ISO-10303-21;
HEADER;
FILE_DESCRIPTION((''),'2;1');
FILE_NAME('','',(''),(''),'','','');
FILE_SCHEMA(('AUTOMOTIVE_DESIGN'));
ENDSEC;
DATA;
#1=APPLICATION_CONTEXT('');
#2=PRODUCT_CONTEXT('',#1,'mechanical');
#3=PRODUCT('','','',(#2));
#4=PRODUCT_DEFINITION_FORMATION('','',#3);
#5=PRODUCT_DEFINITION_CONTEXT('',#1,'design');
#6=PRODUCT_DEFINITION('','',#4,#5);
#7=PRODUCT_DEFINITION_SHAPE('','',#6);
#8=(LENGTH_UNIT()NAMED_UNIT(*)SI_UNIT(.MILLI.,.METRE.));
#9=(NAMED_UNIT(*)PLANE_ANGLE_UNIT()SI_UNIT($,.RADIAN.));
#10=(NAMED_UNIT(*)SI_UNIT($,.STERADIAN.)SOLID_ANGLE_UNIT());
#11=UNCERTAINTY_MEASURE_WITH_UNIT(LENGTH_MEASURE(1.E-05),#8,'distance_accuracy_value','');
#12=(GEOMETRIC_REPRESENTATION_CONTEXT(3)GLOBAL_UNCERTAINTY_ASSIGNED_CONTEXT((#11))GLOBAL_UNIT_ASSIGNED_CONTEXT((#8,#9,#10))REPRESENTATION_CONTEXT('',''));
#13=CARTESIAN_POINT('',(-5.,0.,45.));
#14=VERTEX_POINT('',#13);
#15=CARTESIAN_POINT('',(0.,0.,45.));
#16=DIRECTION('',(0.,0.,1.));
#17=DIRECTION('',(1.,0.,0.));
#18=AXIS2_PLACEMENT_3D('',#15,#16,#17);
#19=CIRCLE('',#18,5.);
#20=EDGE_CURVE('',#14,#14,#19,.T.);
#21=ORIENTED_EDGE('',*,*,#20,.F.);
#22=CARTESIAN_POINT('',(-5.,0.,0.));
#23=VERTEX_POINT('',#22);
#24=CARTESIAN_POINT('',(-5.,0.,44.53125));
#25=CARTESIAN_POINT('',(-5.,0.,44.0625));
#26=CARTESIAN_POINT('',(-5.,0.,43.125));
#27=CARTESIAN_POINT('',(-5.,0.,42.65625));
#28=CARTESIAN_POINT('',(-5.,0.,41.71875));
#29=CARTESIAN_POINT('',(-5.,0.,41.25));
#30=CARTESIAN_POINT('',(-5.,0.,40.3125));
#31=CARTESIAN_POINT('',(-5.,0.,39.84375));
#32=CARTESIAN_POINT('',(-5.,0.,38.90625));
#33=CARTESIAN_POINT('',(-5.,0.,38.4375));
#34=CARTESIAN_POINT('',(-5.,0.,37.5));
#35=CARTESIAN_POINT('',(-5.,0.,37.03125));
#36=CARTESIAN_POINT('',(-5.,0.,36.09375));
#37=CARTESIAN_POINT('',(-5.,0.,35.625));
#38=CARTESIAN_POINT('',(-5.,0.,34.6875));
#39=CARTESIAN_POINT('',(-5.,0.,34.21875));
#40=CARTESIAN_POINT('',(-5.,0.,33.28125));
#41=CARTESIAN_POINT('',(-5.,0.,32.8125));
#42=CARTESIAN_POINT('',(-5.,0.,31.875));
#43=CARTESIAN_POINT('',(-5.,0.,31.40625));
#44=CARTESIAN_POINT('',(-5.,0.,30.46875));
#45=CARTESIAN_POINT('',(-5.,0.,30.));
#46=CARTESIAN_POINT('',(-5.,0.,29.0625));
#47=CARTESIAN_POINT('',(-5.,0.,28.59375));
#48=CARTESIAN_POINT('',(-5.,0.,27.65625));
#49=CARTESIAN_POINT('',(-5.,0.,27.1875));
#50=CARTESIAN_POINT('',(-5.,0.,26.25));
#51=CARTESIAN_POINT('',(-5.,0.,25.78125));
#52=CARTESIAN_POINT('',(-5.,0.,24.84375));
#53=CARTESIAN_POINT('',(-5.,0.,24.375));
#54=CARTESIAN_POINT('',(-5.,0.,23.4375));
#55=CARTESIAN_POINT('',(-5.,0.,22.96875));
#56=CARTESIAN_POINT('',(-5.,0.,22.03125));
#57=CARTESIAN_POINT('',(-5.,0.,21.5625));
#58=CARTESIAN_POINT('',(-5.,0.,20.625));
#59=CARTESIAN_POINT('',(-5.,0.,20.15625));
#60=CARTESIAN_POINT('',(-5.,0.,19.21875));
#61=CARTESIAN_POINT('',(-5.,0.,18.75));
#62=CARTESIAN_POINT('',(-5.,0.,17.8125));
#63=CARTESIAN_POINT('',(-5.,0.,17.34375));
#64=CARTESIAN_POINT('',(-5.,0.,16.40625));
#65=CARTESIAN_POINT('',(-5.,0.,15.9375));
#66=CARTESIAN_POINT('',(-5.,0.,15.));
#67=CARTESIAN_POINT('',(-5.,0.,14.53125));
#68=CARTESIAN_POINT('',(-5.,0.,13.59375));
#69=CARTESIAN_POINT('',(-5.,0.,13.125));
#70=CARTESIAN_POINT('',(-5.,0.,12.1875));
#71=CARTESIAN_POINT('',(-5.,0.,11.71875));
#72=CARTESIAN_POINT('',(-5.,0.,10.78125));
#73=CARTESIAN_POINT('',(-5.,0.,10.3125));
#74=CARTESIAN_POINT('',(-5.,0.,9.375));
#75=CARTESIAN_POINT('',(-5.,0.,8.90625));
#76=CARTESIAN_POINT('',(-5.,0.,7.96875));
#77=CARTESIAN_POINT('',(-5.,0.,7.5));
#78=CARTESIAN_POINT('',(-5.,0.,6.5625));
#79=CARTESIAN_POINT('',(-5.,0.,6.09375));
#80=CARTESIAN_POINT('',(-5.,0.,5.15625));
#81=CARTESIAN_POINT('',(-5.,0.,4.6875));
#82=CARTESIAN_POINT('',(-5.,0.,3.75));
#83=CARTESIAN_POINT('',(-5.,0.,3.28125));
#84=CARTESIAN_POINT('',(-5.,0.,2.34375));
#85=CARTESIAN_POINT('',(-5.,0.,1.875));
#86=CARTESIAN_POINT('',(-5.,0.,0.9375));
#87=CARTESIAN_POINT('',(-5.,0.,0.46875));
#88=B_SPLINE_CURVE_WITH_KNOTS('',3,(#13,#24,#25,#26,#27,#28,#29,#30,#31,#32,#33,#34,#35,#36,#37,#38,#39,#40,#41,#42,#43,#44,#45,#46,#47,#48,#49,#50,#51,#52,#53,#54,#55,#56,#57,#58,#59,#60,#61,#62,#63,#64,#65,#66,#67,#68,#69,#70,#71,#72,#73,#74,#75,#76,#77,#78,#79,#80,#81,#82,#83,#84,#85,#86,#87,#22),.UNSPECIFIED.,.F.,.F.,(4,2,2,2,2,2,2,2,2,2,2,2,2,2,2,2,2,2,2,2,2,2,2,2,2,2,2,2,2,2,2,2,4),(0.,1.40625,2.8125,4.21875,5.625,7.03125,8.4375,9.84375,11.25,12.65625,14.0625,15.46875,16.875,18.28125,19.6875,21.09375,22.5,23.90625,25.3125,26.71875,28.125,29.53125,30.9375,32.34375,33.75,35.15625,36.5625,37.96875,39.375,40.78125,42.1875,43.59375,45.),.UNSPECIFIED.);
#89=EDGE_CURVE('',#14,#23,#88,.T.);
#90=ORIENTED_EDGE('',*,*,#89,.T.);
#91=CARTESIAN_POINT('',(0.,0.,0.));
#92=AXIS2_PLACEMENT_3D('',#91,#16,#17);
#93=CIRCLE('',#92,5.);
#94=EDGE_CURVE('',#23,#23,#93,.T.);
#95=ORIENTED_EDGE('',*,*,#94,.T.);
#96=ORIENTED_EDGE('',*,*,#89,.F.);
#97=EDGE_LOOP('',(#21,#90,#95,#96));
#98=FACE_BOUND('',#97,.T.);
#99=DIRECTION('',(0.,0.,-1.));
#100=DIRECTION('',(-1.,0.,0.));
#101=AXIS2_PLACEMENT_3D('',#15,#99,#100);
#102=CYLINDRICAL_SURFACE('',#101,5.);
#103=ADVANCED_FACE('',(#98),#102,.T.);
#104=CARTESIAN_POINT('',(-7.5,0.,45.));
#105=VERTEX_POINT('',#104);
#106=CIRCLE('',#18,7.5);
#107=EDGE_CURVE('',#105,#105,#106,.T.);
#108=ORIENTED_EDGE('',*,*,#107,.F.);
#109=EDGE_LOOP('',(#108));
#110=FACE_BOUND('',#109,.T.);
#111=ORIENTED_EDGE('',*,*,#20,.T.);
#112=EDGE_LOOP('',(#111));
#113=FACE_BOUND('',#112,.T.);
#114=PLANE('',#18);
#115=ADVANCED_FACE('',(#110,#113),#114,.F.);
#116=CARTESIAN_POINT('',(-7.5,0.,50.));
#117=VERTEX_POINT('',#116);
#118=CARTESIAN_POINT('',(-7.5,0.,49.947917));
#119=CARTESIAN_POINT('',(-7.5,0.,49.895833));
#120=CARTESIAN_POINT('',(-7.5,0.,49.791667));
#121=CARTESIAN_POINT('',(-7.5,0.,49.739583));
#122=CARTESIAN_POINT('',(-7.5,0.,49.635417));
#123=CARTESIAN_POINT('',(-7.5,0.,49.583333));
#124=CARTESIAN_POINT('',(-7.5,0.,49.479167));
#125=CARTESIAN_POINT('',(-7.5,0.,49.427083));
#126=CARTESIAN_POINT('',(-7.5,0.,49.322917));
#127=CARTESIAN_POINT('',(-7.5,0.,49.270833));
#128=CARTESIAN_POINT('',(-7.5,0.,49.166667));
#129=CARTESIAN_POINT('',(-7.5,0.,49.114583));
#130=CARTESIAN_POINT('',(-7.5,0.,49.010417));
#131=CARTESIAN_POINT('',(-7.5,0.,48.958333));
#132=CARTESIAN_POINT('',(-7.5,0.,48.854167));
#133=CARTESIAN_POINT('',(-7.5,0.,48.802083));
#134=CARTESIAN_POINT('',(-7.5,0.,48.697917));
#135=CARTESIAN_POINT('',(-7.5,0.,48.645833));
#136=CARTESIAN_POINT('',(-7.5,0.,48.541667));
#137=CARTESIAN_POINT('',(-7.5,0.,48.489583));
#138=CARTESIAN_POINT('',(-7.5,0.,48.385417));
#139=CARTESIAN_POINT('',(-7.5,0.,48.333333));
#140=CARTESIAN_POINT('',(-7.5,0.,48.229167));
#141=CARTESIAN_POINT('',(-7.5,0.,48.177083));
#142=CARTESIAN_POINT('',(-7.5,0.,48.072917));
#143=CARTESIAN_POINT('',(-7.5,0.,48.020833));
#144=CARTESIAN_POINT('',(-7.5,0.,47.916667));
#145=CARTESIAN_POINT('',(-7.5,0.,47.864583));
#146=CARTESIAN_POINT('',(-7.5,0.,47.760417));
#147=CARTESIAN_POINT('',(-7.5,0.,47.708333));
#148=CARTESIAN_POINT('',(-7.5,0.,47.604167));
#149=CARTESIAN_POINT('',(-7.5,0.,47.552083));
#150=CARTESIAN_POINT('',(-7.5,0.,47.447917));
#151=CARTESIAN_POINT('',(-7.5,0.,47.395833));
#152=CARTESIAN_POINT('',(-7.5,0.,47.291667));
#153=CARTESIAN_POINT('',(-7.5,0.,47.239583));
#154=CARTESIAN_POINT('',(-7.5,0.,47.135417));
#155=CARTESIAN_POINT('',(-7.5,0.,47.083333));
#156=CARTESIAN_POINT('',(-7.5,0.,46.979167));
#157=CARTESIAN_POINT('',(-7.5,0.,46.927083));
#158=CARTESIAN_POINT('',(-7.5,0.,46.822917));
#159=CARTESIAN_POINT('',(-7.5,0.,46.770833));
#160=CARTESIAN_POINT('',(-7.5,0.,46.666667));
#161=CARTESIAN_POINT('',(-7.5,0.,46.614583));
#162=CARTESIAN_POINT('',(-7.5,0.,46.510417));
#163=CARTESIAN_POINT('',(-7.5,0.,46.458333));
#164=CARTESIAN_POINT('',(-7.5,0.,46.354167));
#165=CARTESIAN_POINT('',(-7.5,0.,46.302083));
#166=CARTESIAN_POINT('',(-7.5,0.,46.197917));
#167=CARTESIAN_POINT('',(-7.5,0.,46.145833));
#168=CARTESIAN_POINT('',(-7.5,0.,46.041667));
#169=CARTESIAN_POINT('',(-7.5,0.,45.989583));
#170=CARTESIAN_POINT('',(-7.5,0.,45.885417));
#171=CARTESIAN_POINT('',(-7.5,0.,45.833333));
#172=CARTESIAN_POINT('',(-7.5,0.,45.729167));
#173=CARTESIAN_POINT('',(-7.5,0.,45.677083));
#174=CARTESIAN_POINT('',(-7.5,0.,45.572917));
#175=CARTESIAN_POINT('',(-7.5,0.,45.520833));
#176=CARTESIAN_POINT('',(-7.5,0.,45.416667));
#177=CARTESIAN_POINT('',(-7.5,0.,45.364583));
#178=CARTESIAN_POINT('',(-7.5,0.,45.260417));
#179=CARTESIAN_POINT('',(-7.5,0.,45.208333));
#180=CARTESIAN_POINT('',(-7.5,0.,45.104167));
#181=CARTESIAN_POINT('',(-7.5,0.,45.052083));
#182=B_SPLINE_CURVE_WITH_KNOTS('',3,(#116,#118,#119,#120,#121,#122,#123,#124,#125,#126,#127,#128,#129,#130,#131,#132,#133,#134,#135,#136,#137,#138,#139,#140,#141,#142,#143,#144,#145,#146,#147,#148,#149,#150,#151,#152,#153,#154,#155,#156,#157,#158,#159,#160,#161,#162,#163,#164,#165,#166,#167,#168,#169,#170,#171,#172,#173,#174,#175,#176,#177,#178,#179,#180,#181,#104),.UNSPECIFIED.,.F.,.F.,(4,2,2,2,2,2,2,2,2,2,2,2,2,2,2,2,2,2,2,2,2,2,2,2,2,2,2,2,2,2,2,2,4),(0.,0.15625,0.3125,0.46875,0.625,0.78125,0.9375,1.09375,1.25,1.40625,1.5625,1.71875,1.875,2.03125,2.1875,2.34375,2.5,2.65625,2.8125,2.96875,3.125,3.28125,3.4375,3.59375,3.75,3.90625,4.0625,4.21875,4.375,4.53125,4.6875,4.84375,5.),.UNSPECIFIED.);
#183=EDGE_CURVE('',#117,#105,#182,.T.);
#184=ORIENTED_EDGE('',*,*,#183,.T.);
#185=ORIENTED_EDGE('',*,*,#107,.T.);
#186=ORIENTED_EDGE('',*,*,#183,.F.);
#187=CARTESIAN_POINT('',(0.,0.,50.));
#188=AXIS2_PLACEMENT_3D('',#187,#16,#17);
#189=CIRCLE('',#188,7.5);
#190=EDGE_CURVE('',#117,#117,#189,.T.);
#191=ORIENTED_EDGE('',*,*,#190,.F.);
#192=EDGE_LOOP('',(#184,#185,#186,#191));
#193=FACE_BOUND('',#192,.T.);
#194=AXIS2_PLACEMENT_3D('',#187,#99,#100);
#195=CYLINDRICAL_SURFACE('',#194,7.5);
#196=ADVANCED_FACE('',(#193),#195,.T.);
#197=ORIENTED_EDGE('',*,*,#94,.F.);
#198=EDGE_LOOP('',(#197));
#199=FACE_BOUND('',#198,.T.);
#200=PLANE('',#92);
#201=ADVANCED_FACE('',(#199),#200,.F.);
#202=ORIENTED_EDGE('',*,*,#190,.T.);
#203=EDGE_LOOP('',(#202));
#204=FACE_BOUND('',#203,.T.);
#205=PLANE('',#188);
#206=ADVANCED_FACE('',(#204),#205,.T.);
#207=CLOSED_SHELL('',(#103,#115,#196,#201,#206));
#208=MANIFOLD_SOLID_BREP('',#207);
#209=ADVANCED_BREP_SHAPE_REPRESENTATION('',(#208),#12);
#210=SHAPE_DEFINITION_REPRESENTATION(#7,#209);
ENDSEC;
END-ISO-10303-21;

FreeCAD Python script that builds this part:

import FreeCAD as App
import Part
import Sketcher
from FreeCAD import Vector

doc = App.newDocument("Part")
params = doc.addObject("Spreadsheet::Sheet", "Params")
for row, (alias, value) in enumerate([
    ("sketch1_diameter", "10 mm"),
    ("pad1_length", "45 mm"),
    ("sketch2_diameter", "15 mm"),
    ("pad2_length", "5 mm"),
], start=1):
    params.set(f"A{row}", alias)
    params.set(f"B{row}", "=" + value)
    params.setAlias(f"B{row}", alias)

body = doc.addObject("PartDesign::Body", "Body")

sketch1 = body.newObject("Sketcher::SketchObject", "Sketch")
sketch1.AttachmentSupport = (doc.getObject("XY_Plane"), [""])
sketch1.MapMode = "FlatFace"
sketch1.addGeometry(Part.Circle(Vector(0, 0, 0), Vector(0, 0, 1), 5), False)
sketch1.addConstraint([
    Sketcher.Constraint("Coincident", 0, 3, -1, 1),
    Sketcher.Constraint("Diameter", 0, 10.0),
])
sketch1.setExpression("Constraints[1]", "Params.sketch1_diameter")
pad1 = body.newObject("PartDesign::Pad", "Pad")
pad1.Profile = sketch1
pad1.setExpression("Length", "Params.pad1_length")

sketch2 = body.newObject("Sketcher::SketchObject", "Sketch001")
sketch2.AttachmentSupport = (doc.getObject("XY_Plane"), [""])
sketch2.MapMode = "FlatFace"
sketch2.AttachmentOffset = App.Placement(Vector(0, 0, 45), App.Rotation())
sketch2.addGeometry(Part.Circle(Vector(0, 0, 0), Vector(0, 0, 1), 8), False)
sketch2.addConstraint([
    Sketcher.Constraint("Coincident", 0, 3, -1, 1),
    Sketcher.Constraint("Diameter", 0, 15.0),
])
sketch2.setExpression("Constraints[1]", "Params.sketch2_diameter")
pad2 = body.newObject("PartDesign::Pad", "Pad001")
pad2.Profile = sketch2
pad2.setExpression("Length", "Params.pad2_length")

doc.recompute()
